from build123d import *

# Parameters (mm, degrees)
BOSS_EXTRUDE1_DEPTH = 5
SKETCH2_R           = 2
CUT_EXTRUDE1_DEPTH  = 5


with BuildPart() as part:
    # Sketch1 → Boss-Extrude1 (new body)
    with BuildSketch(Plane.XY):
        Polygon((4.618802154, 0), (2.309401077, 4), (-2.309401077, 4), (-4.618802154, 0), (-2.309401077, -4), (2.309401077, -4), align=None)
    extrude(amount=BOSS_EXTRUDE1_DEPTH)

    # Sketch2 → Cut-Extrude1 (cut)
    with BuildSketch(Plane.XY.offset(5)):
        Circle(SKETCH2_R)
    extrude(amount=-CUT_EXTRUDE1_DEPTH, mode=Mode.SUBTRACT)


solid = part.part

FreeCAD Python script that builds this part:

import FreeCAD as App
import Part
import Sketcher
Q = App.Units.Quantity

doc = App.newDocument("Part")
body = doc.addObject("PartDesign::Body", "Body")

# Sketch on XY plane
sketch1 = body.newObject("Sketcher::SketchObject", "Sketch")
sketch1.AttachmentSupport = (doc.getObject("XY_Plane"), [""])
sketch1.MapMode = "FlatFace"
sketch1.addGeometry([
    Part.LineSegment(App.Vector(4.618802, 0, 0), App.Vector(2.309401, 4, 0)),  # 0
    Part.LineSegment(App.Vector(2.309401, 4, 0), App.Vector(-2.309401, 4, 0)),  # 1
    Part.LineSegment(App.Vector(-2.309401, 4, 0), App.Vector(-4.618802, 0, 0)),  # 2
    Part.LineSegment(App.Vector(-4.618802, 0, 0), App.Vector(-2.309401, -4, 0)),  # 3
    Part.LineSegment(App.Vector(-2.309401, -4, 0), App.Vector(2.309401, -4, 0)),  # 4
    Part.LineSegment(App.Vector(2.309401, -4, 0), App.Vector(4.618802, 0, 0)),  # 5
], False)
sketch1.addConstraint([
    Sketcher.Constraint("Coincident", 0, 2, 1, 1),
    Sketcher.Constraint("Coincident", 1, 2, 2, 1),
    Sketcher.Constraint("Coincident", 2, 2, 3, 1),
    Sketcher.Constraint("Coincident", 3, 2, 4, 1),
    Sketcher.Constraint("Coincident", 4, 2, 5, 1),
    Sketcher.Constraint("Coincident", 5, 2, 0, 1),
    Sketcher.Constraint("Horizontal", 1),
    Sketcher.Constraint("Horizontal", 4),
    Sketcher.Constraint("Symmetric", 0, 2, 3, 2, -1, 1),
    Sketcher.Constraint("Symmetric", 2, 2, 5, 2, -1, 1),
    Sketcher.Constraint("PointOnObject", 2, 2, -1),
    Sketcher.Constraint("Parallel", 2, 5),
    Sketcher.Constraint("Vertical", 1, 2, 3, 2),
    Sketcher.Constraint("Angle", 0, Q("120 deg")),
    Sketcher.Constraint("DistanceY", -1, 1, 0, 2, 4.0),
    Sketcher.Constraint("DistanceX", -1, 1, 0, 2, 2.309401),
])
pad1 = body.newObject("PartDesign::Pad", "Pad")
pad1.Profile = sketch1
pad1.Length = 5

# Sketch on XY plane
sketch2 = body.newObject("Sketcher::SketchObject", "Sketch001")
sketch2.AttachmentSupport = (doc.getObject("XY_Plane"), [""])
sketch2.MapMode = "FlatFace"
sketch2.AttachmentOffset = App.Placement(App.Vector(0, 0, 5), App.Rotation())
sketch2.addGeometry(Part.Circle(App.Vector(0, 0, 0), App.Vector(0, 0, 1), 2), False)
sketch2.addConstraint([
    Sketcher.Constraint("Coincident", 0, 3, -1, 1),
    Sketcher.Constraint("Diameter", 0, 4.0),
])
pocket1 = body.newObject("PartDesign::Pocket", "Pocket")
pocket1.Profile = sketch2
pocket1.Length = 5

doc.recompute()
